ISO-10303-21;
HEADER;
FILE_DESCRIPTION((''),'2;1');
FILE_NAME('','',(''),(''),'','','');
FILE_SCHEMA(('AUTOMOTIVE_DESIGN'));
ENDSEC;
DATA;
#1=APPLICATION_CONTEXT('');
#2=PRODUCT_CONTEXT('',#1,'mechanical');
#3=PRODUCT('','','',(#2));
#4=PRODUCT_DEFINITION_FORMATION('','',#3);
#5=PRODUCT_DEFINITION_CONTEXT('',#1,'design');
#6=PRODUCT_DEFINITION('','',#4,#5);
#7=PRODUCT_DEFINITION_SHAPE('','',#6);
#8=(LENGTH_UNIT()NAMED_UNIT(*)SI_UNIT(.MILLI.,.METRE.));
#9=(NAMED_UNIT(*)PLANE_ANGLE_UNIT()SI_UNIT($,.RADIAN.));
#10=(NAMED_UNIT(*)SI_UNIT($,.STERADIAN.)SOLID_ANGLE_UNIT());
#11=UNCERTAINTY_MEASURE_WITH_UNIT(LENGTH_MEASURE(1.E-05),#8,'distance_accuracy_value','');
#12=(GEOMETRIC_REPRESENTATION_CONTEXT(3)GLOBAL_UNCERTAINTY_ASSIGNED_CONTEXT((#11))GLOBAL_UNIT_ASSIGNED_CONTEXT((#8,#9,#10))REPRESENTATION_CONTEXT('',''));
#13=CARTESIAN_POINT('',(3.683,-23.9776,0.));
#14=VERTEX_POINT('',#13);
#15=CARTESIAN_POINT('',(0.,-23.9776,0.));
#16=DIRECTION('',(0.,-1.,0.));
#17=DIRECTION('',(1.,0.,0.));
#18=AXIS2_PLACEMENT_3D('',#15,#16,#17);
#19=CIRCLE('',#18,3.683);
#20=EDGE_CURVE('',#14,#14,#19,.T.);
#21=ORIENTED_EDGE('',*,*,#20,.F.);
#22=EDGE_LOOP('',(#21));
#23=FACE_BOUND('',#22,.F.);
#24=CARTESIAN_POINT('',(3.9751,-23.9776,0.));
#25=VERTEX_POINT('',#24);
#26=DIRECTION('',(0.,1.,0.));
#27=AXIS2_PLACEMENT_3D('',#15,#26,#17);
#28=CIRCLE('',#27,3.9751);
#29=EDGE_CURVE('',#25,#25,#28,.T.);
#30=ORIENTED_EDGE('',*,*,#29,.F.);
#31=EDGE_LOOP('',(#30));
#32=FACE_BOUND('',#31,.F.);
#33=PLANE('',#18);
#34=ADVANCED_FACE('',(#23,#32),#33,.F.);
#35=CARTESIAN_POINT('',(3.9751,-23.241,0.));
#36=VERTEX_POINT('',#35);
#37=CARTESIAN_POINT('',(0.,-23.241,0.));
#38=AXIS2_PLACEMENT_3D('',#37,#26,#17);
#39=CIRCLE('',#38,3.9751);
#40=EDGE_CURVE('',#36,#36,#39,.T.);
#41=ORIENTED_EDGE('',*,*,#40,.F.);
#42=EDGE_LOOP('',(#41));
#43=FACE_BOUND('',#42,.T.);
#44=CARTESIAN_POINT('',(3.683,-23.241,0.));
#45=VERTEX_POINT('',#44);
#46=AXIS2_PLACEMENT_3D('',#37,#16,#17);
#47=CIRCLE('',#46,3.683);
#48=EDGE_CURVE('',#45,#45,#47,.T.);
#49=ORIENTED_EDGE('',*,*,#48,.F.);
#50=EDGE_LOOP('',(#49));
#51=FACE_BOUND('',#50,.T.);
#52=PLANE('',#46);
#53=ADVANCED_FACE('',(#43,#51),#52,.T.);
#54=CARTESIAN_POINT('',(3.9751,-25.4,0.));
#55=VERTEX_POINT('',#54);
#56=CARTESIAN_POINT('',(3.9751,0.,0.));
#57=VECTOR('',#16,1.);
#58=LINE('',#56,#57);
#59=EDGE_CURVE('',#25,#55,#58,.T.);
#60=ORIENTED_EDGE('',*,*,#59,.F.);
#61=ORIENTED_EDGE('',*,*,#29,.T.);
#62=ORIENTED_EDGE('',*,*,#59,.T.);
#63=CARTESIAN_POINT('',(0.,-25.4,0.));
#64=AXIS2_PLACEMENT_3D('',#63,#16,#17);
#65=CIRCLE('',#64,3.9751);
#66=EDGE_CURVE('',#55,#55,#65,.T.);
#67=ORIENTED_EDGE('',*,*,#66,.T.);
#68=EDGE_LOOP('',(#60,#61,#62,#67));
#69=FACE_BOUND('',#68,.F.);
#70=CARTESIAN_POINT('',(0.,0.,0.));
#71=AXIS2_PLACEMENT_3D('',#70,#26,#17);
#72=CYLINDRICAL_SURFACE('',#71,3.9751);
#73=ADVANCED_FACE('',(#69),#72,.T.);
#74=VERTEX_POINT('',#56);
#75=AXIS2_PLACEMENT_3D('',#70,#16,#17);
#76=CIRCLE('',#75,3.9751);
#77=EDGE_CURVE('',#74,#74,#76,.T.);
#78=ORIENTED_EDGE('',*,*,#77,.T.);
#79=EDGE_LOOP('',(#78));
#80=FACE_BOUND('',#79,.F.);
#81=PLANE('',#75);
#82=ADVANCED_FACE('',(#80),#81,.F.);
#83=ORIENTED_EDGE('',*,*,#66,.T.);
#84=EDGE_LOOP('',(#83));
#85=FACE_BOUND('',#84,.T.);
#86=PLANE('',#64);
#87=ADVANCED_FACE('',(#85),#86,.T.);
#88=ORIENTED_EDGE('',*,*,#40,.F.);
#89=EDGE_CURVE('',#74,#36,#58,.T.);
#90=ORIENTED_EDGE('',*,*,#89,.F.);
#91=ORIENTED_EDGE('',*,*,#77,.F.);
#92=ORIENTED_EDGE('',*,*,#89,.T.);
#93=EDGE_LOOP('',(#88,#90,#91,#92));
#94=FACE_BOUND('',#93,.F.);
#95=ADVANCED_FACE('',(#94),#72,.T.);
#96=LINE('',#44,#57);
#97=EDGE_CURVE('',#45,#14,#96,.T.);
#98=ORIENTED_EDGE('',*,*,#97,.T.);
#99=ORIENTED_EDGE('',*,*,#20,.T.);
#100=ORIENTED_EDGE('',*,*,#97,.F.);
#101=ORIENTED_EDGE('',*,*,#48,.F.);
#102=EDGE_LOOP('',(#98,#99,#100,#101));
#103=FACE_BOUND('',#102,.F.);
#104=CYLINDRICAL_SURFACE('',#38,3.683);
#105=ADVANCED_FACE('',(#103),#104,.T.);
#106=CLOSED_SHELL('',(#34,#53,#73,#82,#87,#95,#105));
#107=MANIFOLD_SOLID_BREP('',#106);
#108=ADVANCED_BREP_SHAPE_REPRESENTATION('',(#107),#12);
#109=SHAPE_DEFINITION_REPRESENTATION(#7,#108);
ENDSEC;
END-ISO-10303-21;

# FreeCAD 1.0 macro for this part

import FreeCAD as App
import Part
import Sketcher
Q = App.Units.Quantity

doc = App.newDocument("Part")
body = doc.addObject("PartDesign::Body", "Body")

# Sketch on XZ plane
sketch1 = body.newObject("Sketcher::SketchObject", "Sketch")
sketch1.AttachmentSupport = (doc.getObject("XZ_Plane"), [""])
sketch1.MapMode = "FlatFace"
sketch1.addGeometry(Part.Circle(App.Vector(0, 0, 0), App.Vector(0, 0, 1), 4), False)
sketch1.addConstraint([
    Sketcher.Constraint("Coincident", 0, 3, -1, 1),
    Sketcher.Constraint("Diameter", 0, Q("0.313 in")),
])
pad1 = body.newObject("PartDesign::Pad", "Pad")
pad1.Profile = sketch1
pad1.Length = Q("1 in")

# Sketch on XZ plane
sketch2 = body.newObject("Sketcher::SketchObject", "Sketch001")
sketch2.AttachmentSupport = (doc.getObject("XZ_Plane"), [""])
sketch2.MapMode = "FlatFace"
sketch2.AttachmentOffset = App.Placement(App.Vector(0, 0, 0.915 * 25.4), App.Rotation())
sketch2.addGeometry([
    Part.Circle(App.Vector(0, 0, 0), App.Vector(0, 0, 1), 7.4),
    Part.Circle(App.Vector(0, 0, 0), App.Vector(0, 0, 1), 3.7),
], False)
sketch2.addConstraint([
    Sketcher.Constraint("Coincident", 0, 3, -1, 1),
    Sketcher.Constraint("Coincident", 1, 3, -1, 1),
    Sketcher.Constraint("Diameter", 1, Q("0.29 in")),
    Sketcher.Constraint("Diameter", 0, Q("14.771502 mm")),
])
pocket1 = body.newObject("PartDesign::Pocket", "Pocket")
pocket1.Profile = sketch2
pocket1.Length = Q("0.029 in")
pocket1.Reversed = True

doc.recompute()
